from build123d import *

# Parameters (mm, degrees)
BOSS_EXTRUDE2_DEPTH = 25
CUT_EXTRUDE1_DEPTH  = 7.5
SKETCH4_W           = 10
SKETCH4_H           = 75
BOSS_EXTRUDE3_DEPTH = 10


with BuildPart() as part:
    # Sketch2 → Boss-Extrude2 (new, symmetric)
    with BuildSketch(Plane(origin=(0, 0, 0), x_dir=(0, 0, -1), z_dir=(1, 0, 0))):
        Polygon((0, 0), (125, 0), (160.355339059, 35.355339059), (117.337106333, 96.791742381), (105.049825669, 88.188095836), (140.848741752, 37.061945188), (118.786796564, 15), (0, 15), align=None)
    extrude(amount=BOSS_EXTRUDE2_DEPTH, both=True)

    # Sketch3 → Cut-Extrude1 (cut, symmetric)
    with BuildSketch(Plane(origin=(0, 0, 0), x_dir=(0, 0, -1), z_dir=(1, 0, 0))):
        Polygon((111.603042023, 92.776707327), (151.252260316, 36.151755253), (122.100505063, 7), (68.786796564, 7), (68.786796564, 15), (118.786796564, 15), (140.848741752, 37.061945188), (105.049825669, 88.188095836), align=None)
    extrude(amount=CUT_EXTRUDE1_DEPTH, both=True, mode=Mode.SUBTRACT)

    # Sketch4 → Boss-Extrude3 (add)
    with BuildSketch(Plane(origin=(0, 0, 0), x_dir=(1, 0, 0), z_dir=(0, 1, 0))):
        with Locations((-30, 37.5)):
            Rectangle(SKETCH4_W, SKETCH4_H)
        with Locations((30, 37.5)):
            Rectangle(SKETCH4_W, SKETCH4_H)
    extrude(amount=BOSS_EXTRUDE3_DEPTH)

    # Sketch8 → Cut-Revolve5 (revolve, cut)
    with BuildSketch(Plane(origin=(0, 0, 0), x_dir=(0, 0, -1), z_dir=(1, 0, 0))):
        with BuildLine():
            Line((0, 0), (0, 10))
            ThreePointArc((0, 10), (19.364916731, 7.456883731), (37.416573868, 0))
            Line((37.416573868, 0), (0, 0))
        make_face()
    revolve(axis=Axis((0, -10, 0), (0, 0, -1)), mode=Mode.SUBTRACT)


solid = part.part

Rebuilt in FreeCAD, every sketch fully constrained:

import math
import FreeCAD as App
import Part
import Sketcher
Q = App.Units.Quantity


def add_polygon(sketch, points):
    """Adds a closed chain of lines whose ends are joined by coincident constraints."""
    first, n = sketch.GeometryCount, len(points)
    for a, b in zip(points, points[1:] + points[:1]):
        sketch.addGeometry(Part.LineSegment(App.Vector(*a, 0), App.Vector(*b, 0)), False)
    for i in range(n):
        sketch.addConstraint(Sketcher.Constraint("Coincident", first + i, 2, first + (i + 1) % n, 1))

doc = App.newDocument("Part")
body = doc.addObject("PartDesign::Body", "Body")

# Sketch on YZ plane
sketch1 = doc.addObject("Sketcher::SketchObject", "Sketch")
body.addObject(sketch1)
sketch1.AttachmentSupport = (doc.YZ_Plane, [""])
sketch1.MapMode = "FlatFace"
add_polygon(sketch1, [(0, 0), (0, -125), (35.355339, -160.355339), (96.791742, -117.337106), (88.188096, -105.049826), (37.061945, -140.848742), (15, -118.786797), (15, 0)])  # lines 0-7
sketch1.addConstraint([
    Sketcher.Constraint("Vertical", 0),
    Sketcher.Constraint("Vertical", 6),
    Sketcher.Constraint("Horizontal", 7),
    Sketcher.Constraint("Coincident", 7, 2, -1, 1),
    Sketcher.Constraint("Perpendicular", 2, 3),
    Sketcher.Constraint("Perpendicular", 3, 4),
    Sketcher.Constraint("Parallel", 1, 5),
    Sketcher.Constraint("DistanceX", 7, 2, 7, 1, Q("15 mm")),
    Sketcher.Constraint("DistanceY", 0, 2, 0, 1, Q("125 mm")),
    Sketcher.Constraint("Angle", 1, Q("-45 deg")),
    Sketcher.Constraint("Angle", 2, Q("35 deg")),
    Sketcher.Constraint("Distance", 1, Q("50 mm")),
    Sketcher.Constraint("Distance", 2, Q("75 mm")),
    Sketcher.Constraint("Distance", 3, Q("15 mm")),
    Sketcher.Constraint("DistanceY", 6, 1, 6, 2, Q("118.786797 mm")),
])
pad1 = doc.addObject("PartDesign::Pad", "Pad")
body.addObject(pad1)
pad1.Profile = sketch1
pad1.Length = 50
pad1.Midplane = True

# Sketch on YZ plane
sketch2 = doc.addObject("Sketcher::SketchObject", "Sketch001")
body.addObject(sketch2)
sketch2.AttachmentSupport = (doc.YZ_Plane, [""])
sketch2.MapMode = "FlatFace"
add_polygon(sketch2, [(36.151755, -151.25226), (92.776707, -111.603042), (88.188096, -105.049826), (37.061945, -140.848742), (15, -118.786797), (15, -68.786797), (7, -68.786797), (7, -122.100505)])  # lines 0-7
sketch2.addConstraint([
    Sketcher.Constraint("Vertical", 4),
    Sketcher.Constraint("Horizontal", 5),
    Sketcher.Constraint("Vertical", 6),
    Sketcher.Constraint("Perpendicular", 0, 1),
    Sketcher.Constraint("Perpendicular", 1, 2),
    Sketcher.Constraint("Parallel", 3, 7),
    Sketcher.Constraint("DistanceX", 5, 2, 5, 1, Q("8 mm")),
    Sketcher.Constraint("DistanceY", 4, 1, 4, 2, Q("50 mm")),
    Sketcher.Constraint("Angle", 0, Q("35 deg")),
    Sketcher.Constraint("Angle", 3, Q("135 deg")),
    Sketcher.Constraint("Distance", 1, Q("8 mm")),
    Sketcher.Constraint("DistanceX", -1, 1, 3, 2, Q("15 mm")),
    Sketcher.Constraint("DistanceY", 6, 2, 6, 1, Q("53.313708 mm")),
    Sketcher.Constraint("DistanceY", 2, 2, 0, 2, Q("29.2457 mm")),
    Sketcher.Constraint("DistanceY", 2, 2, -1, 1, Q("140.848742 mm")),
    Sketcher.Constraint("DistanceY", 3, 2, 1, 2, Q("13.736971 mm")),
])
pocket1 = doc.addObject("PartDesign::Pocket", "Pocket")
body.addObject(pocket1)
pocket1.Profile = sketch2
pocket1.Length = 15
pocket1.Midplane = True

# Sketch on XZ plane
sketch3 = doc.addObject("Sketcher::SketchObject", "Sketch002")
body.addObject(sketch3)
sketch3.AttachmentSupport = (doc.XZ_Plane, [""])
sketch3.MapMode = "FlatFace"
add_polygon(sketch3, [(-35, -75), (-35, 0), (-25, 0), (-25, -75)])  # lines 0-3
add_polygon(sketch3, [(25, -75), (25, 0), (35, 0), (35, -75)])  # lines 4-7
sketch3.addConstraint([
    Sketcher.Constraint("Vertical", 0),
    Sketcher.Constraint("Horizontal", 1),
    Sketcher.Constraint("Vertical", 2),
    Sketcher.Constraint("Horizontal", 3),
    Sketcher.Constraint("Vertical", 4),
    Sketcher.Constraint("Horizontal", 5),
    Sketcher.Constraint("Vertical", 6),
    Sketcher.Constraint("Horizontal", 7),
    Sketcher.Constraint("Symmetric", 1, 2, 4, 2, -1, 1),
    Sketcher.Constraint("Symmetric", 0, 2, 5, 2, -2),
    Sketcher.Constraint("Horizontal", 3, 2, 6, 2),
    Sketcher.Constraint("DistanceX", 1, 1, 1, 2, Q("10 mm")),
    Sketcher.Constraint("DistanceY", 0, 1, 0, 2, Q("75 mm")),
    Sketcher.Constraint("DistanceX", 0, 2, -1, 1, Q("35 mm")),
])
pad2 = doc.addObject("PartDesign::Pad", "Pad001")
body.addObject(pad2)
pad2.Profile = sketch3
pad2.Length = 10
pad2.Reversed = True

# Sketch on YZ plane
sketch4 = doc.addObject("Sketcher::SketchObject", "Sketch003")
body.addObject(sketch4)
sketch4.AttachmentSupport = (doc.YZ_Plane, [""])
sketch4.MapMode = "FlatFace"
sketch4.addGeometry([
    Part.LineSegment(App.Vector(10, 0, 0), App.Vector(0, 0, 0)),
    Part.LineSegment(App.Vector(0, 0, 0), App.Vector(0, -37.416574, 0)),
    Part.ArcOfCircle(Part.Circle(App.Vector(-65, 0, 0), App.Vector(0, 0, 1), 75), math.radians(-29.926435), math.radians(0)),
], False)
sketch4.addGeometry(Part.LineSegment(App.Vector(-10, 0, 0), App.Vector(-10, -37.416574, 0)), True)  # axis
sketch4.addConstraint([
    Sketcher.Constraint("Coincident", 0, 2, 1, 1),
    Sketcher.Constraint("Coincident", 1, 2, 2, 1),
    Sketcher.Constraint("Coincident", 2, 2, 0, 1),
    Sketcher.Constraint("Horizontal", 0),
    Sketcher.Constraint("Vertical", 1),
    Sketcher.Constraint("Vertical", 3),
    Sketcher.Constraint("Coincident", 0, 2, -1, 1),
    Sketcher.Constraint("Symmetric", 2, 2, 3, 1, -1, 1),
    Sketcher.Constraint("PointOnObject", 2, 3, -1),
    Sketcher.Constraint("Horizontal", 1, 2, 3, 2),
    Sketcher.Constraint("Radius", 2, Q("75 mm")),
    Sketcher.Constraint("DistanceX", 0, 2, 0, 1, Q("10 mm")),
])
groove = doc.addObject("PartDesign::Groove", "Groove")
body.addObject(groove)
groove.Profile = sketch4
groove.ReferenceAxis = (sketch4, ["Axis0"])
groove.Angle = 360

doc.recompute()
